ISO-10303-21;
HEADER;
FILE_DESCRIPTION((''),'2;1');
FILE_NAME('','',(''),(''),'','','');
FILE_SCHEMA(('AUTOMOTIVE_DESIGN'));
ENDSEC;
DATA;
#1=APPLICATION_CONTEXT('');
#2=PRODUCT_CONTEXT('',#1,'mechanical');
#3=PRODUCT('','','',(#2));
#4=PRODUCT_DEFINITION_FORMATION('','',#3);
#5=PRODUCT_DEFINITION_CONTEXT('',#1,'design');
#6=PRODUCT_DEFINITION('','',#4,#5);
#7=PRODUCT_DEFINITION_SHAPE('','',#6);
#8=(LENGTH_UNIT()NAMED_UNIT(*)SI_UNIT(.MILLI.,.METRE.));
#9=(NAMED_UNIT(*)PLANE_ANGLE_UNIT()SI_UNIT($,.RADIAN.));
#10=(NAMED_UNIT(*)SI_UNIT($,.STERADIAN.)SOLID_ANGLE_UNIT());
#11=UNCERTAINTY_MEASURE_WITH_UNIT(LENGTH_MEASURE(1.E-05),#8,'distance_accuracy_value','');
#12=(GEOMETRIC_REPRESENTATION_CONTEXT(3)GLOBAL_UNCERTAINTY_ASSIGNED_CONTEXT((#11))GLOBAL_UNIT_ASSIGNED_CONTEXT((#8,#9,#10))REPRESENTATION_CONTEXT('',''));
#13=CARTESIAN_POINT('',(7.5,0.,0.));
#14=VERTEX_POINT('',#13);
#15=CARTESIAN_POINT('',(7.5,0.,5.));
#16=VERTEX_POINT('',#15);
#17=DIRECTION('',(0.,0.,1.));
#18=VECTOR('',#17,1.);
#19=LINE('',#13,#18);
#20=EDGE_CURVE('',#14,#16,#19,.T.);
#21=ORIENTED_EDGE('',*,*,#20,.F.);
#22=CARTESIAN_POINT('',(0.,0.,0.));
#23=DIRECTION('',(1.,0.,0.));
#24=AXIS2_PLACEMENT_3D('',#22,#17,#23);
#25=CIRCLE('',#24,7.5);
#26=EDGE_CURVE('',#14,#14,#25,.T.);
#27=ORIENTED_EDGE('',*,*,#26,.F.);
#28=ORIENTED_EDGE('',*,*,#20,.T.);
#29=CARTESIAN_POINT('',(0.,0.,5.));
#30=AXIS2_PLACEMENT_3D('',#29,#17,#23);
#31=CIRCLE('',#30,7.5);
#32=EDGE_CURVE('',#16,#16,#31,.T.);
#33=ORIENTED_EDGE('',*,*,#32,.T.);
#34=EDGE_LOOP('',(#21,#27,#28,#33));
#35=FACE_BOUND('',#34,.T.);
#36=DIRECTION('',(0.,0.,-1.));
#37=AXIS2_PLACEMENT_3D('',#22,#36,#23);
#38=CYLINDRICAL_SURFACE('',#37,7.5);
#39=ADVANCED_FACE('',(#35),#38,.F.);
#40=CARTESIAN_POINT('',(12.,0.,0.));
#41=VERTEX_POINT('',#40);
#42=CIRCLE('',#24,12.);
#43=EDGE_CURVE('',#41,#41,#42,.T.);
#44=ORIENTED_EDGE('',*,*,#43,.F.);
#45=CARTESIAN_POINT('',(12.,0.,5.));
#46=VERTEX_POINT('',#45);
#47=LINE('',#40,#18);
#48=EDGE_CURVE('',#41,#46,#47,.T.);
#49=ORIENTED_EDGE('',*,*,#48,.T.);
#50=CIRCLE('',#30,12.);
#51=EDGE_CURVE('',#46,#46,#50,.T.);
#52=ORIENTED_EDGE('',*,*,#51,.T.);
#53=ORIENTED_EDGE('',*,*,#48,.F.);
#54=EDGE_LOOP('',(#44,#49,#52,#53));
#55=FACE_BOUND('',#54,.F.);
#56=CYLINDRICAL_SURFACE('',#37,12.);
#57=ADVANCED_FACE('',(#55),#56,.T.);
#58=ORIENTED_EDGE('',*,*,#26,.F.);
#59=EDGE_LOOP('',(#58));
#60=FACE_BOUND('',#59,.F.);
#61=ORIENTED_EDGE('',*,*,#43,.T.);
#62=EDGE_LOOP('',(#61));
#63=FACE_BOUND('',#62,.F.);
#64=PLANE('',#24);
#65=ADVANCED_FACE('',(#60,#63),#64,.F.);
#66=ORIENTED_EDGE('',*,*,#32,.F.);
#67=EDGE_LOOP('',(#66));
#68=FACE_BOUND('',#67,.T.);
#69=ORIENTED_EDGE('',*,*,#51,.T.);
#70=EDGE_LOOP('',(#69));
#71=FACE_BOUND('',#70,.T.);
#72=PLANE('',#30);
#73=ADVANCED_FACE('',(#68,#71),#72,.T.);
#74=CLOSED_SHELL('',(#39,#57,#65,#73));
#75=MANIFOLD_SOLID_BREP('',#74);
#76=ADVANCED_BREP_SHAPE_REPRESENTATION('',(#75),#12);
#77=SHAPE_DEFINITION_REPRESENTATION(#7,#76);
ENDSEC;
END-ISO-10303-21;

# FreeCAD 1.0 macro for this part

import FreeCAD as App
import Part
import Sketcher

V = App.Vector
Q = App.Units.Quantity

doc = App.newDocument("Part")
body = doc.addObject("PartDesign::Body", "Body")

# Sketch on XY plane
sketch1 = body.newObject("Sketcher::SketchObject", "Sketch")
sketch1.AttachmentSupport = (doc.getObject("XY_Plane"), [""])
sketch1.MapMode = "FlatFace"
sketch1.addGeometry([
    Part.Circle(V(0, 0, 0), V(0, 0, 1), 12),
    Part.Circle(V(0, 0, 0), V(0, 0, 1), 8),
], False)
sketch1.addConstraint([
    Sketcher.Constraint("Coincident", 0, 3, -1, 1),
    Sketcher.Constraint("Coincident", 1, 3, -1, 1),
    Sketcher.Constraint("Diameter", 0, Q("24 mm")),
    Sketcher.Constraint("Diameter", 1, Q("15 mm")),
])
pad1 = body.newObject("PartDesign::Pad", "Pad")
pad1.Profile = sketch1
pad1.Length = 5

doc.recompute()
